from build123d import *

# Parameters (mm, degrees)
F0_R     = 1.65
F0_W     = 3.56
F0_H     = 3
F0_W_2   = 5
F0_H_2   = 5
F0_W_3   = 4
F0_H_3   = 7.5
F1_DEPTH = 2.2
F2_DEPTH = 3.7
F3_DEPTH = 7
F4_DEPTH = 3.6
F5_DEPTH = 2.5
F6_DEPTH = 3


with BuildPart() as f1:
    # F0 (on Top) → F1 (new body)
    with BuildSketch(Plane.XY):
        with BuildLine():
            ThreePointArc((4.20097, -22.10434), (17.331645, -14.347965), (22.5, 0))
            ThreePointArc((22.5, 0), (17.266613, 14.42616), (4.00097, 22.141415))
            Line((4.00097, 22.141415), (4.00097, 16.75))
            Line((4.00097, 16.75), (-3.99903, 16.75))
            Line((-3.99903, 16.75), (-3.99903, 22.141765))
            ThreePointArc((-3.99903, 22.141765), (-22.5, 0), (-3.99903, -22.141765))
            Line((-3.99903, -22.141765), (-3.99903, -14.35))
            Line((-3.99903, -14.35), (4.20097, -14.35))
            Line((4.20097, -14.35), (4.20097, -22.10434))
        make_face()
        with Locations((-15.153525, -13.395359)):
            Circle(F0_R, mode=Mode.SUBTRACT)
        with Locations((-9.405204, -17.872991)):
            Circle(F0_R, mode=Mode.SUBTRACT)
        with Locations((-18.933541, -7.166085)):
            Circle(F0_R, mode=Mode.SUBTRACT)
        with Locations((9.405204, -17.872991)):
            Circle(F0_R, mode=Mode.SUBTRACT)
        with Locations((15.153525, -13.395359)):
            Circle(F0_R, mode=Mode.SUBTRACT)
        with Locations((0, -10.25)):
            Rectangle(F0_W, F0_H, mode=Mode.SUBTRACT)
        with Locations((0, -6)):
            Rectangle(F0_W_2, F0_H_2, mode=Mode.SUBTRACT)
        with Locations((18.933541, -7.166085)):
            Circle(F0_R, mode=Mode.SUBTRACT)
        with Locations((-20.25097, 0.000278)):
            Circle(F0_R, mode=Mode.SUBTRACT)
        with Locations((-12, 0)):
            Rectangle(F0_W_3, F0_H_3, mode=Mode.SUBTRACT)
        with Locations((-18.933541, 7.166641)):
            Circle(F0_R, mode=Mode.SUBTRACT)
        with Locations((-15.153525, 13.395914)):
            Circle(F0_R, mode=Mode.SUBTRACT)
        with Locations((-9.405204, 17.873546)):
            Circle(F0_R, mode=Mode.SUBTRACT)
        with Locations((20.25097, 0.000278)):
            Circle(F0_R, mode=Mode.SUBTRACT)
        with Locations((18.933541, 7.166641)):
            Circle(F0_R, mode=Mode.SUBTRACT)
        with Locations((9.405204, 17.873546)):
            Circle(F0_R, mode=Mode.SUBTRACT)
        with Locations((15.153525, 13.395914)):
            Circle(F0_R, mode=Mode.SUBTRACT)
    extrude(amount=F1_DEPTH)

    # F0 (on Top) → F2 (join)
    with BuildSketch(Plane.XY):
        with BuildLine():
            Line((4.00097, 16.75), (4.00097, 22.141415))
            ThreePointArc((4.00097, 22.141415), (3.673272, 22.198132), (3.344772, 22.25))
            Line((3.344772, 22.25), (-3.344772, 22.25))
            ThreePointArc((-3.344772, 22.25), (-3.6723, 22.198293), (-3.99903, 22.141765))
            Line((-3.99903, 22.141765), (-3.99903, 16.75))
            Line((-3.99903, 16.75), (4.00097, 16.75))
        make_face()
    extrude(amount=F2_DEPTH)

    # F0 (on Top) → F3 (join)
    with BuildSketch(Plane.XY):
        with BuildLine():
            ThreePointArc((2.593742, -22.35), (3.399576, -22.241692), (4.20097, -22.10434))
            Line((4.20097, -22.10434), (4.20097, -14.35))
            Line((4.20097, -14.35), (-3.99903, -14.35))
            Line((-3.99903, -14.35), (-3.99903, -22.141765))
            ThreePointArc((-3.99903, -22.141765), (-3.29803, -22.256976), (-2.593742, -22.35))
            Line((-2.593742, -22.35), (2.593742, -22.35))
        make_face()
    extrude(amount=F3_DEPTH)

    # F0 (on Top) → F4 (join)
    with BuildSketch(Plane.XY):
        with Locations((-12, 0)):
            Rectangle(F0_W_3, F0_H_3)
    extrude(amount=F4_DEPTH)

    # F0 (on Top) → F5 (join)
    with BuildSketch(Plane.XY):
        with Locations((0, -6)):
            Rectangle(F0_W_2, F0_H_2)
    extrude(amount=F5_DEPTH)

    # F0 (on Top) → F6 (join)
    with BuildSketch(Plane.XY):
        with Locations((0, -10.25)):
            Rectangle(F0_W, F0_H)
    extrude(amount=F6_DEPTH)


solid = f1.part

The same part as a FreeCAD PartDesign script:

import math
import FreeCAD as App
import Part
import Sketcher
from FreeCAD import Vector
Q = App.Units.Quantity

doc = App.newDocument("Part")
body = doc.addObject("PartDesign::Body", "Body")

# Sketch on XY plane
sketch1 = doc.addObject("Sketcher::SketchObject", "Sketch")
body.addObject(sketch1)
sketch1.AttachmentSupport = (doc.XY_Plane, [""])
sketch1.MapMode = "FlatFace"
sketch1.addGeometry([
    Part.ArcOfCircle(Part.Circle(Vector(0, 0, 0), Vector(0, 0, 1), 22.5), math.radians(-79), math.radians(0)),  # 0
    Part.ArcOfCircle(Part.Circle(Vector(0, 0, 0), Vector(0, 0, 1), 22.5), math.radians(0), math.radians(80)),  # 1
    Part.LineSegment(Vector(4, 22.1, 0), Vector(4, 16.8, 0)),  # 2
    Part.LineSegment(Vector(4, 16.8, 0), Vector(-4, 16.8, 0)),  # 3
    Part.LineSegment(Vector(-4, 16.8, 0), Vector(-4, 22.1, 0)),  # 4
    Part.ArcOfCircle(Part.Circle(Vector(0, 0, 0), Vector(0, 0, 1), 22.5), math.radians(100), math.radians(260)),  # 5
    Part.LineSegment(Vector(-4, -22.1, 0), Vector(-4, -14.3, 0)),  # 6
    Part.LineSegment(Vector(-4, -14.3, 0), Vector(4.2, -14.3, 0)),  # 7
    Part.LineSegment(Vector(4.2, -14.3, 0), Vector(4.2, -22.1, 0)),  # 8
    Part.Circle(Vector(-15.2, -13.4, 0), Vector(0, 0, 1), 1.6),  # 9
    Part.Circle(Vector(-9.4, -17.9, 0), Vector(0, 0, 1), 1.6),  # 10
    Part.Circle(Vector(-18.9, -7.2, 0), Vector(0, 0, 1), 1.6),  # 11
    Part.LineSegment(Vector(-10, -3.8, 0), Vector(-14, -3.8, 0)),  # 12
    Part.LineSegment(Vector(-14, -3.8, 0), Vector(-14, 3.8, 0)),  # 13
    Part.LineSegment(Vector(-14, 3.8, 0), Vector(-10, 3.8, 0)),  # 14
    Part.LineSegment(Vector(-10, 3.8, 0), Vector(-10, -3.8, 0)),  # 15
    Part.Circle(Vector(9.4, -17.9, 0), Vector(0, 0, 1), 1.6),  # 16
    Part.LineSegment(Vector(1.8, -11.8, 0), Vector(-1.8, -11.8, 0)),  # 17
    Part.LineSegment(Vector(-1.8, -11.8, 0), Vector(-1.8, -8.8, 0)),  # 18
    Part.LineSegment(Vector(-1.8, -8.8, 0), Vector(1.8, -8.8, 0)),  # 19
    Part.LineSegment(Vector(1.8, -8.8, 0), Vector(1.8, -11.8, 0)),  # 20
    Part.Circle(Vector(15.2, -13.4, 0), Vector(0, 0, 1), 1.6),  # 21
    Part.LineSegment(Vector(2.5, -8.5, 0), Vector(-2.5, -8.5, 0)),  # 22
    Part.LineSegment(Vector(-2.5, -8.5, 0), Vector(-2.5, -3.5, 0)),  # 23
    Part.LineSegment(Vector(-2.5, -3.5, 0), Vector(2.5, -3.5, 0)),  # 24
    Part.LineSegment(Vector(2.5, -3.5, 0), Vector(2.5, -8.5, 0)),  # 25
    Part.Circle(Vector(18.9, -7.2, 0), Vector(0, 0, 1), 1.6),  # 26
    Part.Circle(Vector(-20.3, 0, 0), Vector(0, 0, 1), 1.6),  # 27
    Part.Circle(Vector(-18.9, 7.2, 0), Vector(0, 0, 1), 1.6),  # 28
    Part.Circle(Vector(-15.2, 13.4, 0), Vector(0, 0, 1), 1.6),  # 29
    Part.Circle(Vector(-9.4, 17.9, 0), Vector(0, 0, 1), 1.6),  # 30
    Part.Circle(Vector(20.3, 0, 0), Vector(0, 0, 1), 1.6),  # 31
    Part.Circle(Vector(18.9, 7.2, 0), Vector(0, 0, 1), 1.6),  # 32
    Part.Circle(Vector(9.4, 17.9, 0), Vector(0, 0, 1), 1.6),  # 33
    Part.Circle(Vector(15.2, 13.4, 0), Vector(0, 0, 1), 1.6),  # 34
], False)
sketch1.addConstraint([
    Sketcher.Constraint("Tangent", 0, 2, 1, 1),
    Sketcher.Constraint("Coincident", 1, 2, 2, 1),
    Sketcher.Constraint("Coincident", 2, 2, 3, 1),
    Sketcher.Constraint("Coincident", 3, 2, 4, 1),
    Sketcher.Constraint("Coincident", 4, 2, 5, 1),
    Sketcher.Constraint("Coincident", 5, 2, 6, 1),
    Sketcher.Constraint("Coincident", 6, 2, 7, 1),
    Sketcher.Constraint("Coincident", 7, 2, 8, 1),
    Sketcher.Constraint("Coincident", 8, 2, 0, 1),
    Sketcher.Constraint("Coincident", 12, 2, 13, 1),
    Sketcher.Constraint("Coincident", 13, 2, 14, 1),
    Sketcher.Constraint("Coincident", 14, 2, 15, 1),
    Sketcher.Constraint("Coincident", 15, 2, 12, 1),
    Sketcher.Constraint("Coincident", 17, 2, 18, 1),
    Sketcher.Constraint("Coincident", 18, 2, 19, 1),
    Sketcher.Constraint("Coincident", 19, 2, 20, 1),
    Sketcher.Constraint("Coincident", 20, 2, 17, 1),
    Sketcher.Constraint("Coincident", 22, 2, 23, 1),
    Sketcher.Constraint("Coincident", 23, 2, 24, 1),
    Sketcher.Constraint("Coincident", 24, 2, 25, 1),
    Sketcher.Constraint("Coincident", 25, 2, 22, 1),
    Sketcher.Constraint("Vertical", 2),
    Sketcher.Constraint("Horizontal", 3),
    Sketcher.Constraint("Vertical", 4),
    Sketcher.Constraint("Vertical", 6),
    Sketcher.Constraint("Horizontal", 7),
    Sketcher.Constraint("Vertical", 8),
    Sketcher.Constraint("Horizontal", 12),
    Sketcher.Constraint("Vertical", 13),
    Sketcher.Constraint("Horizontal", 14),
    Sketcher.Constraint("Vertical", 15),
    Sketcher.Constraint("Horizontal", 17),
    Sketcher.Constraint("Vertical", 18),
    Sketcher.Constraint("Horizontal", 19),
    Sketcher.Constraint("Vertical", 20),
    Sketcher.Constraint("Horizontal", 22),
    Sketcher.Constraint("Vertical", 23),
    Sketcher.Constraint("Horizontal", 24),
    Sketcher.Constraint("Vertical", 25),
    Sketcher.Constraint("Coincident", 0, 3, -1, 1),
    Sketcher.Constraint("Coincident", 5, 3, -1, 1),
    Sketcher.Constraint("Equal", 0, 1),
    Sketcher.Constraint("Equal", 1, 5),
    Sketcher.Constraint("Equal", 9, 10),
    Sketcher.Constraint("Equal", 10, 11),
    Sketcher.Constraint("Equal", 11, 16),
    Sketcher.Constraint("Equal", 16, 21),
    Sketcher.Constraint("Equal", 21, 26),
    Sketcher.Constraint("Equal", 26, 27),
    Sketcher.Constraint("Equal", 27, 28),
    Sketcher.Constraint("Equal", 28, 29),
    Sketcher.Constraint("Equal", 29, 30),
    Sketcher.Constraint("Equal", 30, 31),
    Sketcher.Constraint("Equal", 31, 32),
    Sketcher.Constraint("Equal", 32, 33),
    Sketcher.Constraint("Equal", 33, 34),
    Sketcher.Constraint("Symmetric", 10, 3, 16, 3, -2),
    Sketcher.Constraint("Symmetric", 9, 3, 21, 3, -2),
    Sketcher.Constraint("Symmetric", 11, 3, 26, 3, -2),
    Sketcher.Constraint("Symmetric", 27, 3, 31, 3, -2),
    Sketcher.Constraint("Symmetric", 28, 3, 32, 3, -2),
    Sketcher.Constraint("Symmetric", 30, 3, 33, 3, -2),
    Sketcher.Constraint("Symmetric", 29, 3, 34, 3, -2),
    Sketcher.Constraint("PointOnObject", 0, 2, -1),
    Sketcher.Constraint("Vertical", 11, 3, 28, 3),
    Sketcher.Constraint("Vertical", 9, 3, 29, 3),
    Sketcher.Constraint("Vertical", 10, 3, 30, 3),
    Sketcher.Constraint("Vertical", 4, 2, 5, 2),
    Sketcher.Constraint("Equal", 24, 23),
    Sketcher.Constraint("Diameter", 9, Q("3.3 mm")),
    Sketcher.Constraint("Radius", 0, Q("22.499998 mm")),
    Sketcher.Constraint("DistanceX", 3, 2, 3, 1, Q("8 mm")),
    Sketcher.Constraint("DistanceX", 12, 2, 12, 1, Q("4 mm")),
    Sketcher.Constraint("DistanceX", 22, 2, 22, 1, Q("5 mm")),
    Sketcher.Constraint("DistanceY", 18, 1, 18, 2, Q("3 mm")),
    Sketcher.Constraint("DistanceX", 7, 1, 7, 2, Q("8.2 mm")),
    Sketcher.Constraint("DistanceY", 13, 1, 13, 2, Q("7.5 mm")),
    Sketcher.Constraint("DistanceX", 12, 2, -1, 1, Q("14 mm")),
    Sketcher.Constraint("DistanceY", 17, 2, 15, 2, Q("8 mm")),
    Sketcher.Constraint("DistanceX", 17, 2, 17, 1, Q("3.56 mm")),
    Sketcher.Constraint("DistanceX", 22, 2, -1, 1, Q("2.5 mm")),
    Sketcher.Constraint("DistanceY", 22, 2, -1, 1, Q("8.5 mm")),
    Sketcher.Constraint("DistanceY", 6, 2, 17, 2, Q("2.6 mm")),
    Sketcher.Constraint("DistanceY", -1, 1, 2, 2, Q("16.75 mm")),
    Sketcher.Constraint("DistanceY", 6, 2, -1, 1, Q("14.35 mm")),
    Sketcher.Constraint("DistanceX", 17, 2, -1, 1, Q("1.78 mm")),
    Sketcher.Constraint("DistanceY", 8, 2, 8, 1, Q("7.75434 mm")),
    Sketcher.Constraint("DistanceY", 34, 3, 1, 2, Q("8.745501 mm")),
    Sketcher.Constraint("DistanceY", 9, 3, -1, 1, Q("13.395359 mm")),
    Sketcher.Constraint("DistanceY", 10, 3, -1, 1, Q("17.872991 mm")),
    Sketcher.Constraint("DistanceX", 11, 3, -1, 1, Q("18.933541 mm")),
    Sketcher.Constraint("DistanceX", 27, 3, -1, 1, Q("20.25097 mm")),
    Sketcher.Constraint("DistanceY", -1, 1, 27, 3, Q("0.000278 mm")),
    Sketcher.Constraint("DistanceY", -1, 1, 28, 3, Q("7.166641 mm")),
    Sketcher.Constraint("DistanceX", 9, 3, 10, 3, Q("5.748321 mm")),
    Sketcher.Constraint("DistanceX", 9, 3, 16, 3, Q("24.558729 mm")),
    Sketcher.Constraint("DistanceY", 33, 3, 1, 2, Q("4.267869 mm")),
    Sketcher.Constraint("DistanceY", 5, 2, 11, 3, Q("14.97568 mm")),
])
pad1 = doc.addObject("PartDesign::Pad", "Pad")
body.addObject(pad1)
pad1.Profile = sketch1
pad1.Length = 2.2

# Sketch on XY plane
sketch2 = doc.addObject("Sketcher::SketchObject", "Sketch001")
body.addObject(sketch2)
sketch2.AttachmentSupport = (doc.XY_Plane, [""])
sketch2.MapMode = "FlatFace"
sketch2.addGeometry([
    Part.LineSegment(Vector(4, 16.8, 0), Vector(4, 22.1, 0)),  # 0
    Part.ArcOfCircle(Part.Circle(Vector(0, 0, 0), Vector(0, 0, 1), 22.5), math.radians(79.76), math.radians(81.45)),  # 1
    Part.LineSegment(Vector(3.3, 22.2, 0), Vector(-3.3, 22.2, 0)),  # 2
    Part.ArcOfCircle(Part.Circle(Vector(0, 0, 0), Vector(0, 0, 1), 22.5), math.radians(98.55), math.radians(100.24)),  # 3
    Part.LineSegment(Vector(-4, 22.1, 0), Vector(-4, 16.8, 0)),  # 4
    Part.LineSegment(Vector(-4, 16.8, 0), Vector(4, 16.8, 0)),  # 5
], False)
sketch2.addConstraint([
    Sketcher.Constraint("Coincident", 0, 2, 1, 1),
    Sketcher.Constraint("Coincident", 1, 2, 2, 1),
    Sketcher.Constraint("Coincident", 2, 2, 3, 1),
    Sketcher.Constraint("Coincident", 3, 2, 4, 1),
    Sketcher.Constraint("Coincident", 4, 2, 5, 1),
    Sketcher.Constraint("Coincident", 5, 2, 0, 1),
    Sketcher.Constraint("Vertical", 0),
    Sketcher.Constraint("Horizontal", 2),
    Sketcher.Constraint("Vertical", 4),
    Sketcher.Constraint("Horizontal", 5),
    Sketcher.Constraint("DistanceX", 5, 1, 5, 2, Q("8 mm")),
    Sketcher.Constraint("DistanceY", 4, 2, 2, 2, Q("5.5 mm")),
    Sketcher.Constraint("DistanceY", -1, 1, 1, 2, Q("22.25 mm")),
    Sketcher.Constraint("Radius", 1, Q("22.503654 mm")),
    Sketcher.Constraint("Radius", 3, Q("22.499916 mm")),
    Sketcher.Constraint("DistanceX", 2, 2, 2, 1, Q("6.689544 mm")),
    Sketcher.Constraint("DistanceY", 0, 1, 0, 2, Q("5.391415 mm")),
    Sketcher.Constraint("DistanceY", 4, 2, 4, 1, Q("5.391765 mm")),
    Sketcher.Constraint("DistanceX", -1, 1, 0, 2, Q("4.00097 mm")),
    Sketcher.Constraint("DistanceX", 2, 2, -1, 1, Q("3.344772 mm")),
])
pad2 = doc.addObject("PartDesign::Pad", "Pad001")
body.addObject(pad2)
pad2.Profile = sketch2
pad2.Length = 3.7

# Sketch on XY plane
sketch3 = doc.addObject("Sketcher::SketchObject", "Sketch002")
body.addObject(sketch3)
sketch3.AttachmentSupport = (doc.XY_Plane, [""])
sketch3.MapMode = "FlatFace"
sketch3.addGeometry([
    Part.ArcOfCircle(Part.Circle(Vector(0, 0, 0), Vector(0, 0, 1), 22.5), math.radians(-83.38), math.radians(-79.24)),  # 0
    Part.LineSegment(Vector(4.2, -22.1, 0), Vector(4.2, -14.3, 0)),  # 1
    Part.LineSegment(Vector(4.2, -14.3, 0), Vector(-4, -14.3, 0)),  # 2
    Part.LineSegment(Vector(-4, -14.3, 0), Vector(-4, -22.1, 0)),  # 3
    Part.ArcOfCircle(Part.Circle(Vector(0, 0, 0), Vector(0, 0, 1), 22.5), math.radians(-100.24), math.radians(-96.62)),  # 4
    Part.LineSegment(Vector(-2.6, -22.4, 0), Vector(2.6, -22.4, 0)),  # 5
], False)
sketch3.addConstraint([
    Sketcher.Constraint("Coincident", 0, 2, 1, 1),
    Sketcher.Constraint("Coincident", 1, 2, 2, 1),
    Sketcher.Constraint("Coincident", 2, 2, 3, 1),
    Sketcher.Constraint("Coincident", 3, 2, 4, 1),
    Sketcher.Constraint("Coincident", 4, 2, 5, 1),
    Sketcher.Constraint("Coincident", 5, 2, 0, 1),
    Sketcher.Constraint("Vertical", 1),
    Sketcher.Constraint("Horizontal", 2),
    Sketcher.Constraint("Vertical", 3),
    Sketcher.Constraint("Horizontal", 5),
    Sketcher.Constraint("DistanceX", 2, 2, 2, 1, Q("8.2 mm")),
    Sketcher.Constraint("DistanceY", 4, 2, 2, 2, Q("8 mm")),
    Sketcher.Constraint("DistanceY", 1, 2, -1, 1, Q("14.35 mm")),
    Sketcher.Constraint("Radius", 0, Q("22.500567 mm")),
    Sketcher.Constraint("Radius", 4, Q("22.500685 mm")),
    Sketcher.Constraint("DistanceY", 1, 1, 1, 2, Q("7.75434 mm")),
    Sketcher.Constraint("DistanceX", -1, 1, 4, 3, Q("0.0001 mm")),
    Sketcher.Constraint("DistanceY", 0, 2, 0, 3, Q("22.104901 mm")),
    Sketcher.Constraint("DistanceX", 5, 1, 5, 2, Q("5.187484 mm")),
    Sketcher.Constraint("DistanceY", 3, 2, 3, 1, Q("7.791765 mm")),
])
pad3 = doc.addObject("PartDesign::Pad", "Pad002")
body.addObject(pad3)
pad3.Profile = sketch3
pad3.Length = 7

# Sketch on XY plane
sketch4 = doc.addObject("Sketcher::SketchObject", "Sketch003")
body.addObject(sketch4)
sketch4.AttachmentSupport = (doc.XY_Plane, [""])
sketch4.MapMode = "FlatFace"
sketch4.addGeometry([
    Part.LineSegment(Vector(-14, 3.8, 0), Vector(-14, -3.8, 0)),
    Part.LineSegment(Vector(-14, -3.8, 0), Vector(-10, -3.8, 0)),
    Part.LineSegment(Vector(-10, -3.8, 0), Vector(-10, 3.8, 0)),
    Part.LineSegment(Vector(-10, 3.8, 0), Vector(-14, 3.8, 0)),
], False)
sketch4.addConstraint([
    Sketcher.Constraint("Coincident", 0, 2, 1, 1),
    Sketcher.Constraint("Coincident", 1, 2, 2, 1),
    Sketcher.Constraint("Coincident", 2, 2, 3, 1),
    Sketcher.Constraint("Coincident", 3, 2, 0, 1),
    Sketcher.Constraint("Vertical", 0),
    Sketcher.Constraint("Horizontal", 1),
    Sketcher.Constraint("Vertical", 2),
    Sketcher.Constraint("Horizontal", 3),
    Sketcher.Constraint("DistanceX", 1, 1, 1, 2, Q("4 mm")),
    Sketcher.Constraint("DistanceY", 0, 2, 0, 1, Q("7.5 mm")),
    Sketcher.Constraint("DistanceX", 0, 2, -1, 1, Q("14 mm")),
    Sketcher.Constraint("DistanceY", 0, 2, -1, 1, Q("3.75 mm")),
])
pad4 = doc.addObject("PartDesign::Pad", "Pad003")
body.addObject(pad4)
pad4.Profile = sketch4
pad4.Length = 3.6

# Sketch on XY plane
sketch5 = doc.addObject("Sketcher::SketchObject", "Sketch004")
body.addObject(sketch5)
sketch5.AttachmentSupport = (doc.XY_Plane, [""])
sketch5.MapMode = "FlatFace"
sketch5.addGeometry([
    Part.LineSegment(Vector(-2, -4, 0), Vector(-2, -8, 0)),
    Part.LineSegment(Vector(-2, -8, 0), Vector(2, -8, 0)),
    Part.LineSegment(Vector(2, -8, 0), Vector(2, -4, 0)),
    Part.LineSegment(Vector(2, -4, 0), Vector(-2, -4, 0)),
], False)
sketch5.addConstraint([
    Sketcher.Constraint("Coincident", 0, 2, 1, 1),
    Sketcher.Constraint("Coincident", 1, 2, 2, 1),
    Sketcher.Constraint("Coincident", 2, 2, 3, 1),
    Sketcher.Constraint("Coincident", 3, 2, 0, 1),
    Sketcher.Constraint("Vertical", 0),
    Sketcher.Constraint("Horizontal", 1),
    Sketcher.Constraint("Vertical", 2),
    Sketcher.Constraint("Horizontal", 3),
    Sketcher.Constraint("Equal", 3, 0),
    Sketcher.Constraint("DistanceX", 1, 1, 1, 2, Q("5 mm")),
    Sketcher.Constraint("DistanceX", 0, 2, -1, 1, Q("2.5 mm")),
    Sketcher.Constraint("DistanceY", 0, 2, -1, 1, Q("8.5 mm")),
])
pad5 = doc.addObject("PartDesign::Pad", "Pad004")
body.addObject(pad5)
pad5.Profile = sketch5
pad5.Length = 2.5

# Sketch on XY plane
sketch6 = doc.addObject("Sketcher::SketchObject", "Sketch005")
body.addObject(sketch6)
sketch6.AttachmentSupport = (doc.XY_Plane, [""])
sketch6.MapMode = "FlatFace"
sketch6.addGeometry([
    Part.LineSegment(Vector(-1.8, -8.8, 0), Vector(-1.8, -11.8, 0)),
    Part.LineSegment(Vector(-1.8, -11.8, 0), Vector(1.8, -11.8, 0)),
    Part.LineSegment(Vector(1.8, -11.8, 0), Vector(1.8, -8.8, 0)),
    Part.LineSegment(Vector(1.8, -8.8, 0), Vector(-1.8, -8.8, 0)),
], False)
sketch6.addConstraint([
    Sketcher.Constraint("Coincident", 0, 2, 1, 1),
    Sketcher.Constraint("Coincident", 1, 2, 2, 1),
    Sketcher.Constraint("Coincident", 2, 2, 3, 1),
    Sketcher.Constraint("Coincident", 3, 2, 0, 1),
    Sketcher.Constraint("Vertical", 0),
    Sketcher.Constraint("Horizontal", 1),
    Sketcher.Constraint("Vertical", 2),
    Sketcher.Constraint("Horizontal", 3),
    Sketcher.Constraint("DistanceY", 0, 2, 0, 1, Q("3 mm")),
    Sketcher.Constraint("DistanceX", 1, 1, 1, 2, Q("3.56 mm")),
    Sketcher.Constraint("DistanceX", 0, 2, -1, 1, Q("1.78 mm")),
    Sketcher.Constraint("DistanceY", 0, 2, -1, 1, Q("11.75 mm")),
])
pad6 = doc.addObject("PartDesign::Pad", "Pad005")
body.addObject(pad6)
pad6.Profile = sketch6
pad6.Length = 3

doc.recompute()
